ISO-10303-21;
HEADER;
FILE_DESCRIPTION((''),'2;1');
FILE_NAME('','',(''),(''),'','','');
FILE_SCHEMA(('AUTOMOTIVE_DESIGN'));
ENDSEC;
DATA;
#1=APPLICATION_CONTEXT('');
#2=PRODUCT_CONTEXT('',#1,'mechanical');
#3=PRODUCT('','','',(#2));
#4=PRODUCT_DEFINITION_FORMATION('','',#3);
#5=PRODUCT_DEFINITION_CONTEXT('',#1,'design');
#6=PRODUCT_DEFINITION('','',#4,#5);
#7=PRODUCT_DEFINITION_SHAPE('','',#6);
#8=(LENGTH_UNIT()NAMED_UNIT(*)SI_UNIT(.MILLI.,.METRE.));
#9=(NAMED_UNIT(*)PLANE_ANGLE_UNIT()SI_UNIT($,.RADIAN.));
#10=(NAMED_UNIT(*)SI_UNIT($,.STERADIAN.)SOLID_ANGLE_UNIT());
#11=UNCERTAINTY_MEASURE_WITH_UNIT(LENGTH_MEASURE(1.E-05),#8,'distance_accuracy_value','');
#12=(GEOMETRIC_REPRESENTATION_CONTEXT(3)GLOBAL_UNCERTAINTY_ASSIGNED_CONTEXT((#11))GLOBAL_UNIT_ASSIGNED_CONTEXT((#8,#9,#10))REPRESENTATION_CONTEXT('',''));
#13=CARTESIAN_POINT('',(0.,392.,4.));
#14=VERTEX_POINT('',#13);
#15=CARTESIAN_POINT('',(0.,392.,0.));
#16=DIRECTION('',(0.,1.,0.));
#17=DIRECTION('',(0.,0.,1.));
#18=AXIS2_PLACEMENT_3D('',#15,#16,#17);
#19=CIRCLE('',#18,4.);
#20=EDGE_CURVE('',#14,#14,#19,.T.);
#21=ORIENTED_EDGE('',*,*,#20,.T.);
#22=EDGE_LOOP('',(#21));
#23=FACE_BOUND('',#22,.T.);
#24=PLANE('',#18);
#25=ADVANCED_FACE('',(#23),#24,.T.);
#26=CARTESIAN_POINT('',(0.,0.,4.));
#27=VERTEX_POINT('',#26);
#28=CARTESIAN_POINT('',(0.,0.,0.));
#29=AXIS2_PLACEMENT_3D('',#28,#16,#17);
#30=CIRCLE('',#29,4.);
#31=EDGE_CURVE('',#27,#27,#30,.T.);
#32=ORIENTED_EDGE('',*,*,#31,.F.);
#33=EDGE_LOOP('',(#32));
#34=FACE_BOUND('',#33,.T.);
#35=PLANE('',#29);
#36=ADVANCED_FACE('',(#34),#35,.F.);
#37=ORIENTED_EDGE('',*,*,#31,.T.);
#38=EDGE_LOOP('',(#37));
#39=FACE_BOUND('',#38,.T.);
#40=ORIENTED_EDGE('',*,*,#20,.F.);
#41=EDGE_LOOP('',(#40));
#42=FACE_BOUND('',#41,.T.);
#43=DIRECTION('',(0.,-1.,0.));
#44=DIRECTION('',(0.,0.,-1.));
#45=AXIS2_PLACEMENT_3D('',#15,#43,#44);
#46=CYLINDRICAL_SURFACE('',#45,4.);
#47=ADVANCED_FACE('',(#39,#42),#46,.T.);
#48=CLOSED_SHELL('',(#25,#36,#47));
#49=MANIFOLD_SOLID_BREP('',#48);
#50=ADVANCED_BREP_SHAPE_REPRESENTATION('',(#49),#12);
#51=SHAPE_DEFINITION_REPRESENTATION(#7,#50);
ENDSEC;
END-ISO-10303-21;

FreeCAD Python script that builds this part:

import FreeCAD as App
import Part
import Sketcher
from FreeCAD import Vector

doc = App.newDocument("Part")
body = doc.addObject("PartDesign::Body", "Body")

# Sketch on XZ plane
sketch1 = body.newObject("Sketcher::SketchObject", "Sketch")
sketch1.AttachmentSupport = (doc.getObject("XZ_Plane"), [""])
sketch1.MapMode = "FlatFace"
sketch1.addGeometry(Part.Circle(Vector(0, 0, 0), Vector(0, 0, 1), 4), False)
sketch1.addConstraint([
    Sketcher.Constraint("Coincident", 0, 3, -1, 1),
    Sketcher.Constraint("Diameter", 0, 8.0),
])
pad1 = body.newObject("PartDesign::Pad", "Pad")
pad1.Profile = sketch1
pad1.Length = 392
pad1.Reversed = True

doc.recompute()
